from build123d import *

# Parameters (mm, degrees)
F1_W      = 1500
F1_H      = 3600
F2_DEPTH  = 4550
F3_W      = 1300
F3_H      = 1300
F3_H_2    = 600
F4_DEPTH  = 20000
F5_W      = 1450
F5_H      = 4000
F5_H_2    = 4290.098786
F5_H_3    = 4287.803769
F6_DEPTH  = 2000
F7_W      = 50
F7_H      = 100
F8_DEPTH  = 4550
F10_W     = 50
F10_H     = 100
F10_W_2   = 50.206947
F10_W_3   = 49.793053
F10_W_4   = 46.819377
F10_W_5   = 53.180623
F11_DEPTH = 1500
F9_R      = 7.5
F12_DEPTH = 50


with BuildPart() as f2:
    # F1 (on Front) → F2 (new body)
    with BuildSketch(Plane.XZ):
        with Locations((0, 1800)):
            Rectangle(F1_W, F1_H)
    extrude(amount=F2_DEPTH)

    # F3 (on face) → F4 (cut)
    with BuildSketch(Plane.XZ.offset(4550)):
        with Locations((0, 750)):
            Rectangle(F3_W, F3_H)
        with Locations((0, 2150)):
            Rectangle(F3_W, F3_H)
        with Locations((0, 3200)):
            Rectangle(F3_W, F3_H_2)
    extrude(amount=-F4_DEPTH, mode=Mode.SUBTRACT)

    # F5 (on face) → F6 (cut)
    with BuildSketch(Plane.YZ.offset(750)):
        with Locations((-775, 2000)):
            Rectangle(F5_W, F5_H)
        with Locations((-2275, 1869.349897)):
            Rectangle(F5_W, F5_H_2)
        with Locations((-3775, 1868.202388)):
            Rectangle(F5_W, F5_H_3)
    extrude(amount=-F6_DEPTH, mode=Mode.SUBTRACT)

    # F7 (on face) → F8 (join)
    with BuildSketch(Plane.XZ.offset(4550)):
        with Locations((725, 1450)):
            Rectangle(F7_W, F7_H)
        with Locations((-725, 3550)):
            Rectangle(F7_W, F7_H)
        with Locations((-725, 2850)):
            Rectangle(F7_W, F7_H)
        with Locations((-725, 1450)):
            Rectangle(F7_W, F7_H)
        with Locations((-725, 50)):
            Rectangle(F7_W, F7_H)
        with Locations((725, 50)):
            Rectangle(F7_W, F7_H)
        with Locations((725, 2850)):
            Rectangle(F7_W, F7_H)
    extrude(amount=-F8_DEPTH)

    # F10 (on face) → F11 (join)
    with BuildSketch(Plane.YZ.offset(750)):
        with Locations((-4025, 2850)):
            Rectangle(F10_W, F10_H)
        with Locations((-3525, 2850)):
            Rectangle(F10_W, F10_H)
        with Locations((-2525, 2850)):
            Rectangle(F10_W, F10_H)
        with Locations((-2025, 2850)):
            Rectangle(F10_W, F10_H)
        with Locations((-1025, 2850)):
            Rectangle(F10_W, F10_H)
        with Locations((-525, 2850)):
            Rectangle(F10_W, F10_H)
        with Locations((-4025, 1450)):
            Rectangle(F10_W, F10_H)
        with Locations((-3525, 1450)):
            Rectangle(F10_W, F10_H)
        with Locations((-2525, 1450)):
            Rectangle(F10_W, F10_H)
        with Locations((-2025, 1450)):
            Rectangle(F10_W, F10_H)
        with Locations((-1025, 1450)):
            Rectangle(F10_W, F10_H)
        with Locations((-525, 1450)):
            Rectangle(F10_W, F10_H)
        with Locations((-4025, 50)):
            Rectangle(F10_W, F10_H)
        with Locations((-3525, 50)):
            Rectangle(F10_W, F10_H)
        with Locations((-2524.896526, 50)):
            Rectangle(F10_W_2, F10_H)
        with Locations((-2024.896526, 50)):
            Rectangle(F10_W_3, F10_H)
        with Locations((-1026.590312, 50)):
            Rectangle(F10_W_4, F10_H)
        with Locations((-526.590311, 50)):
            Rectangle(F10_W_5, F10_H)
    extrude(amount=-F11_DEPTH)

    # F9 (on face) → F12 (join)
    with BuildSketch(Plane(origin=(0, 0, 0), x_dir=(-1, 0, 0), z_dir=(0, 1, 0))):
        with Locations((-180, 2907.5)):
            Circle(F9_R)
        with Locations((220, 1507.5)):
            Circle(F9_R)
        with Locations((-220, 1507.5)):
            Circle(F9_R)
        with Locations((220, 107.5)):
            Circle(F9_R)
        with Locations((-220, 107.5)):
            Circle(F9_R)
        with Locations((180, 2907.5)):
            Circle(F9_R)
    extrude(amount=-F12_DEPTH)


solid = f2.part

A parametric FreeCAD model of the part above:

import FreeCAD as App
import Part
import Sketcher


def add_polygon(sketch, points):
    """Adds a closed chain of lines whose ends are joined by coincident constraints."""
    first, n = sketch.GeometryCount, len(points)
    for a, b in zip(points, points[1:] + points[:1]):
        sketch.addGeometry(Part.LineSegment(App.Vector(*a, 0), App.Vector(*b, 0)), False)
    for i in range(n):
        sketch.addConstraint(Sketcher.Constraint("Coincident", first + i, 2, first + (i + 1) % n, 1))

doc = App.newDocument("Part")
body = doc.addObject("PartDesign::Body", "Body")
body.AllowCompound = True

# Sketch on XZ plane
sketch1 = body.newObject("Sketcher::SketchObject", "Sketch")
sketch1.AttachmentSupport = (doc.getObject("XZ_Plane"), [""])
sketch1.MapMode = "FlatFace"
add_polygon(sketch1, [(-750, 3600), (-750, 0), (750, 0), (750, 3600)])  # lines 0-3
sketch1.addConstraint([
    Sketcher.Constraint("Vertical", 0),
    Sketcher.Constraint("Horizontal", 1),
    Sketcher.Constraint("Vertical", 2),
    Sketcher.Constraint("Horizontal", 3),
    Sketcher.Constraint("Symmetric", 0, 2, 1, 2, -1, 1),
    Sketcher.Constraint("DistanceX", 1, 1, 1, 2, 1500.0),
    Sketcher.Constraint("DistanceY", 0, 2, 0, 1, 3600.0),
])
pad1 = body.newObject("PartDesign::Pad", "Pad")
pad1.Profile = sketch1
pad1.Length = 4550

# Sketch on XZ plane
sketch2 = body.newObject("Sketcher::SketchObject", "Sketch001")
sketch2.AttachmentSupport = (doc.getObject("XZ_Plane"), [""])
sketch2.MapMode = "FlatFace"
sketch2.AttachmentOffset = App.Placement(App.Vector(0, 0, 4550), App.Rotation())
add_polygon(sketch2, [(-650, 1400), (-650, 100), (650, 100), (650, 1400)])  # lines 0-3
add_polygon(sketch2, [(-650, 2800), (-650, 1500), (650, 1500), (650, 2800)])  # lines 4-7
add_polygon(sketch2, [(-650, 3500), (-650, 2900), (650, 2900), (650, 3500)])  # lines 8-11
sketch2.addConstraint([
    Sketcher.Constraint("Vertical", 0),
    Sketcher.Constraint("Horizontal", 1),
    Sketcher.Constraint("Vertical", 2),
    Sketcher.Constraint("Horizontal", 3),
    Sketcher.Constraint("Vertical", 4),
    Sketcher.Constraint("Horizontal", 5),
    Sketcher.Constraint("Vertical", 6),
    Sketcher.Constraint("Horizontal", 7),
    Sketcher.Constraint("Vertical", 8),
    Sketcher.Constraint("Horizontal", 9),
    Sketcher.Constraint("Vertical", 10),
    Sketcher.Constraint("Horizontal", 11),
    Sketcher.Constraint("Vertical", 3, 2, 4, 2),
    Sketcher.Constraint("Vertical", 2, 2, 5, 2),
    Sketcher.Constraint("Vertical", 7, 2, 8, 2),
    Sketcher.Constraint("Vertical", 6, 2, 9, 2),
    Sketcher.Constraint("Equal", 11, 0),
    Sketcher.Constraint("Equal", 2, 4),
    Sketcher.Constraint("DistanceX", 1, 1, 1, 2, 1300.0),
    Sketcher.Constraint("DistanceY", 8, 2, 8, 1, 600.0),
    Sketcher.Constraint("DistanceX", 0, 2, -1, 1, 650.0),
    Sketcher.Constraint("DistanceY", -1, 1, 0, 2, 100.0),
    Sketcher.Constraint("DistanceY", -1, 1, 4, 2, 1500.0),
    Sketcher.Constraint("DistanceY", -1, 1, 8, 2, 2900.0),
])
pocket1 = body.newObject("PartDesign::Pocket", "Pocket")
pocket1.Profile = sketch2
pocket1.Length = 20000

# Sketch on YZ plane
sketch3 = body.newObject("Sketcher::SketchObject", "Sketch002")
sketch3.AttachmentSupport = (doc.getObject("YZ_Plane"), [""])
sketch3.MapMode = "FlatFace"
sketch3.AttachmentOffset = App.Placement(App.Vector(0, 0, 750), App.Rotation())
add_polygon(sketch3, [(-1500, 4000), (-1500, 0), (-50, 0), (-50, 4000)])  # lines 0-3
add_polygon(sketch3, [(-3000, 4014), (-3000, -276), (-1550, -276), (-1550, 4014)])  # lines 4-7
add_polygon(sketch3, [(-4500, 4012), (-4500, -276), (-3050, -276), (-3050, 4012)])  # lines 8-11
sketch3.addConstraint([
    Sketcher.Constraint("Vertical", 0),
    Sketcher.Constraint("Horizontal", 1),
    Sketcher.Constraint("Vertical", 2),
    Sketcher.Constraint("Horizontal", 3),
    Sketcher.Constraint("Vertical", 4),
    Sketcher.Constraint("Horizontal", 5),
    Sketcher.Constraint("Vertical", 6),
    Sketcher.Constraint("Horizontal", 7),
    Sketcher.Constraint("Vertical", 8),
    Sketcher.Constraint("Horizontal", 9),
    Sketcher.Constraint("Vertical", 10),
    Sketcher.Constraint("Horizontal", 11),
    Sketcher.Constraint("PointOnObject", 0, 2, -1),
    Sketcher.Constraint("Horizontal", 5, 2, 8, 2),
    Sketcher.Constraint("Equal", 3, 5),
    Sketcher.Constraint("Equal", 7, 9),
    Sketcher.Constraint("DistanceX", 1, 1, 1, 2, 1450.0),
    Sketcher.Constraint("DistanceY", 0, 2, 0, 1, 4000.0),
    Sketcher.Constraint("DistanceX", 0, 2, -1, 1, 1500.0),
    Sketcher.Constraint("DistanceX", 4, 2, -1, 1, 3000.0),
    Sketcher.Constraint("DistanceX", 8, 2, -1, 1, 4500.0),
    Sketcher.Constraint("DistanceY", 8, 2, 8, 1, 4287.803769),
    Sketcher.Constraint("DistanceY", 4, 2, 4, 1, 4290.098786),
    Sketcher.Constraint("DistanceY", -1, 1, 6, 2, 4014.39929),
])
pocket2 = body.newObject("PartDesign::Pocket", "Pocket001")
pocket2.Profile = sketch3
pocket2.Length = 2000

# Sketch on XZ plane
sketch4 = body.newObject("Sketcher::SketchObject", "Sketch003")
sketch4.AttachmentSupport = (doc.getObject("XZ_Plane"), [""])
sketch4.MapMode = "FlatFace"
sketch4.AttachmentOffset = App.Placement(App.Vector(0, 0, 4550), App.Rotation())
add_polygon(sketch4, [(700, 1500), (700, 1400), (750, 1400), (750, 1500)])  # lines 0-3
add_polygon(sketch4, [(-750, 3600), (-750, 3500), (-700, 3500), (-700, 3600)])  # lines 4-7
add_polygon(sketch4, [(-750, 2900), (-750, 2800), (-700, 2800), (-700, 2900)])  # lines 8-11
add_polygon(sketch4, [(-750, 1500), (-750, 1400), (-700, 1400), (-700, 1500)])  # lines 12-15
add_polygon(sketch4, [(-750, 100), (-750, 0), (-700, 0), (-700, 100)])  # lines 16-19
add_polygon(sketch4, [(700, 100), (700, 0), (750, 0), (750, 100)])  # lines 20-23
add_polygon(sketch4, [(700, 2900), (700, 2800), (750, 2800), (750, 2900)])  # lines 24-27
sketch4.addConstraint([
    Sketcher.Constraint("Vertical", 0),
    Sketcher.Constraint("Horizontal", 1),
    Sketcher.Constraint("Vertical", 2),
    Sketcher.Constraint("Horizontal", 3),
    Sketcher.Constraint("Vertical", 4),
    Sketcher.Constraint("Horizontal", 5),
    Sketcher.Constraint("Vertical", 6),
    Sketcher.Constraint("Horizontal", 7),
    Sketcher.Constraint("Vertical", 8),
    Sketcher.Constraint("Horizontal", 9),
    Sketcher.Constraint("Vertical", 10),
    Sketcher.Constraint("Horizontal", 11),
    Sketcher.Constraint("Vertical", 12),
    Sketcher.Constraint("Horizontal", 13),
    Sketcher.Constraint("Vertical", 14),
    Sketcher.Constraint("Horizontal", 15),
    Sketcher.Constraint("Vertical", 16),
    Sketcher.Constraint("Horizontal", 17),
    Sketcher.Constraint("Vertical", 18),
    Sketcher.Constraint("Horizontal", 19),
    Sketcher.Constraint("Vertical", 20),
    Sketcher.Constraint("Horizontal", 21),
    Sketcher.Constraint("Vertical", 22),
    Sketcher.Constraint("Horizontal", 23),
    Sketcher.Constraint("Vertical", 24),
    Sketcher.Constraint("Horizontal", 25),
    Sketcher.Constraint("Vertical", 26),
    Sketcher.Constraint("Horizontal", 27),
    Sketcher.Constraint("Symmetric", 17, 2, 20, 2, -1, 1),
    Sketcher.Constraint("Symmetric", 1, 2, 12, 2, -2),
    Sketcher.Constraint("Symmetric", 3, 2, 14, 2, -2),
    Sketcher.Constraint("Symmetric", 16, 2, 21, 2, -2),
    Sketcher.Constraint("Symmetric", 9, 2, 24, 2, -2),
    Sketcher.Constraint("Symmetric", 11, 2, 26, 2, -2),
    Sketcher.Constraint("Horizontal", 19, 2, 22, 2),
    Sketcher.Constraint("Vertical", 7, 2, 8, 2),
    Sketcher.Constraint("Vertical", 6, 2, 9, 2),
    Sketcher.Constraint("Vertical", 11, 2, 12, 2),
    Sketcher.Constraint("Vertical", 10, 2, 13, 2),
    Sketcher.Constraint("Vertical", 15, 2, 16, 2),
    Sketcher.Constraint("Vertical", 14, 2, 17, 2),
    Sketcher.Constraint("Equal", 2, 4),
    Sketcher.Constraint("Equal", 6, 8),
    Sketcher.Constraint("Equal", 14, 16),
    Sketcher.Constraint("DistanceX", 1, 1, 1, 2, 50.0),
    Sketcher.Constraint("DistanceY", 0, 2, 0, 1, 100.0),
    Sketcher.Constraint("DistanceX", -1, 1, 0, 2, 700.0),
    Sketcher.Constraint("DistanceY", -1, 1, 0, 2, 1400.0),
    Sketcher.Constraint("DistanceY", -1, 1, 4, 2, 3500.0),
    Sketcher.Constraint("DistanceY", -1, 1, 8, 2, 2800.0),
])
pad2 = body.newObject("PartDesign::Pad", "Pad001")
pad2.Profile = sketch4
pad2.Length = 4550
pad2.Reversed = True

# Sketch on YZ plane
sketch5 = body.newObject("Sketcher::SketchObject", "Sketch004")
sketch5.AttachmentSupport = (doc.getObject("YZ_Plane"), [""])
sketch5.MapMode = "FlatFace"
sketch5.AttachmentOffset = App.Placement(App.Vector(0, 0, 750), App.Rotation())
add_polygon(sketch5, [(-4050, 2900), (-4050, 2800), (-4000, 2800), (-4000, 2900)])  # lines 0-3
add_polygon(sketch5, [(-3550, 2900), (-3550, 2800), (-3500, 2800), (-3500, 2900)])  # lines 4-7
add_polygon(sketch5, [(-2550, 2900), (-2550, 2800), (-2500, 2800), (-2500, 2900)])  # lines 8-11
add_polygon(sketch5, [(-2050, 2900), (-2050, 2800), (-2000, 2800), (-2000, 2900)])  # lines 12-15
add_polygon(sketch5, [(-1050, 2900), (-1050, 2800), (-1000, 2800), (-1000, 2900)])  # lines 16-19
add_polygon(sketch5, [(-550, 2900), (-550, 2800), (-500, 2800), (-500, 2900)])  # lines 20-23
add_polygon(sketch5, [(-4050, 1500), (-4050, 1400), (-4000, 1400), (-4000, 1500)])  # lines 24-27
add_polygon(sketch5, [(-3550, 1500), (-3550, 1400), (-3500, 1400), (-3500, 1500)])  # lines 28-31
add_polygon(sketch5, [(-2550, 1500), (-2550, 1400), (-2500, 1400), (-2500, 1500)])  # lines 32-35
add_polygon(sketch5, [(-2050, 1500), (-2050, 1400), (-2000, 1400), (-2000, 1500)])  # lines 36-39
add_polygon(sketch5, [(-1050, 1500), (-1050, 1400), (-1000, 1400), (-1000, 1500)])  # lines 40-43
add_polygon(sketch5, [(-550, 1500), (-550, 1400), (-500, 1400), (-500, 1500)])  # lines 44-47
add_polygon(sketch5, [(-4050, 100), (-4050, 0), (-4000, 0), (-4000, 100)])  # lines 48-51
add_polygon(sketch5, [(-3550, 100), (-3550, 0), (-3500, 0), (-3500, 100)])  # lines 52-55
add_polygon(sketch5, [(-2550, 100), (-2550, 0), (-2500, 0), (-2500, 100)])  # lines 56-59
add_polygon(sketch5, [(-2050, 100), (-2050, 0), (-2000, 0), (-2000, 100)])  # lines 60-63
add_polygon(sketch5, [(-1050, 100), (-1050, 0), (-1003, 0), (-1003, 100)])  # lines 64-67
add_polygon(sketch5, [(-553, 100), (-553, 0), (-500, 0), (-500, 100)])  # lines 68-71
sketch5.addConstraint([
    Sketcher.Constraint("Vertical", 0),
    Sketcher.Constraint("Horizontal", 1),
    Sketcher.Constraint("Vertical", 2),
    Sketcher.Constraint("Horizontal", 3),
    Sketcher.Constraint("Vertical", 4),
    Sketcher.Constraint("Horizontal", 5),
    Sketcher.Constraint("Vertical", 6),
    Sketcher.Constraint("Horizontal", 7),
    Sketcher.Constraint("Vertical", 8),
    Sketcher.Constraint("Horizontal", 9),
    Sketcher.Constraint("Vertical", 10),
    Sketcher.Constraint("Horizontal", 11),
    Sketcher.Constraint("Vertical", 12),
    Sketcher.Constraint("Horizontal", 13),
    Sketcher.Constraint("Vertical", 14),
    Sketcher.Constraint("Horizontal", 15),
    Sketcher.Constraint("Vertical", 16),
    Sketcher.Constraint("Horizontal", 17),
    Sketcher.Constraint("Vertical", 18),
    Sketcher.Constraint("Horizontal", 19),
    Sketcher.Constraint("Vertical", 20),
    Sketcher.Constraint("Horizontal", 21),
    Sketcher.Constraint("Vertical", 22),
    Sketcher.Constraint("Horizontal", 23),
    Sketcher.Constraint("Vertical", 24),
    Sketcher.Constraint("Horizontal", 25),
    Sketcher.Constraint("Vertical", 26),
    Sketcher.Constraint("Horizontal", 27),
    Sketcher.Constraint("Vertical", 28),
    Sketcher.Constraint("Horizontal", 29),
    Sketcher.Constraint("Vertical", 30),
    Sketcher.Constraint("Horizontal", 31),
    Sketcher.Constraint("Vertical", 32),
    Sketcher.Constraint("Horizontal", 33),
    Sketcher.Constraint("Vertical", 34),
    Sketcher.Constraint("Horizontal", 35),
    Sketcher.Constraint("Vertical", 36),
    Sketcher.Constraint("Horizontal", 37),
    Sketcher.Constraint("Vertical", 38),
    Sketcher.Constraint("Horizontal", 39),
    Sketcher.Constraint("Vertical", 40),
    Sketcher.Constraint("Horizontal", 41),
    Sketcher.Constraint("Vertical", 42),
    Sketcher.Constraint("Horizontal", 43),
    Sketcher.Constraint("Vertical", 44),
    Sketcher.Constraint("Horizontal", 45),
    Sketcher.Constraint("Vertical", 46),
    Sketcher.Constraint("Horizontal", 47),
    Sketcher.Constraint("Vertical", 48),
    Sketcher.Constraint("Horizontal", 49),
    Sketcher.Constraint("Vertical", 50),
    Sketcher.Constraint("Horizontal", 51),
    Sketcher.Constraint("Vertical", 52),
    Sketcher.Constraint("Horizontal", 53),
    Sketcher.Constraint("Vertical", 54),
    Sketcher.Constraint("Horizontal", 55),
    Sketcher.Constraint("Vertical", 56),
    Sketcher.Constraint("Horizontal", 57),
    Sketcher.Constraint("Vertical", 58),
    Sketcher.Constraint("Horizontal", 59),
    Sketcher.Constraint("Vertical", 60),
    Sketcher.Constraint("Horizontal", 61),
    Sketcher.Constraint("Vertical", 62),
    Sketcher.Constraint("Horizontal", 63),
    Sketcher.Constraint("Vertical", 64),
    Sketcher.Constraint("Horizontal", 65),
    Sketcher.Constraint("Vertical", 66),
    Sketcher.Constraint("Horizontal", 67),
    Sketcher.Constraint("Vertical", 68),
    Sketcher.Constraint("Horizontal", 69),
    Sketcher.Constraint("Vertical", 70),
    Sketcher.Constraint("Horizontal", 71),
    Sketcher.Constraint("PointOnObject", 48, 2, -1),
    Sketcher.Constraint("PointOnObject", 52, 2, -1),
    Sketcher.Constraint("PointOnObject", 56, 2, -1),
    Sketcher.Constraint("PointOnObject", 60, 2, -1),
    Sketcher.Constraint("PointOnObject", 64, 2, -1),
    Sketcher.Constraint("PointOnObject", 68, 2, -1),
    Sketcher.Constraint("Horizontal", 1, 2, 4, 2),
    Sketcher.Constraint("Horizontal", 3, 2, 6, 2),
    Sketcher.Constraint("Horizontal", 5, 2, 8, 2),
    Sketcher.Constraint("Horizontal", 7, 2, 10, 2),
    Sketcher.Constraint("Horizontal", 9, 2, 12, 2),
    Sketcher.Constraint("Horizontal", 11, 2, 14, 2),
    Sketcher.Constraint("Horizontal", 13, 2, 16, 2),
    Sketcher.Constraint("Horizontal", 15, 2, 18, 2),
    Sketcher.Constraint("Horizontal", 17, 2, 20, 2),
    Sketcher.Constraint("Horizontal", 19, 2, 22, 2),
    Sketcher.Constraint("Horizontal", 25, 2, 28, 2),
    Sketcher.Constraint("Horizontal", 27, 2, 30, 2),
    Sketcher.Constraint("Horizontal", 29, 2, 32, 2),
    Sketcher.Constraint("Horizontal", 31, 2, 34, 2),
    Sketcher.Constraint("Horizontal", 33, 2, 36, 2),
    Sketcher.Constraint("Horizontal", 35, 2, 38, 2),
    Sketcher.Constraint("Horizontal", 37, 2, 40, 2),
    Sketcher.Constraint("Horizontal", 39, 2, 42, 2),
    Sketcher.Constraint("Horizontal", 41, 2, 44, 2),
    Sketcher.Constraint("Horizontal", 43, 2, 46, 2),
    Sketcher.Constraint("Horizontal", 51, 2, 54, 2),
    Sketcher.Constraint("Horizontal", 55, 2, 58, 2),
    Sketcher.Constraint("Horizontal", 59, 2, 62, 2),
    Sketcher.Constraint("Horizontal", 63, 2, 66, 2),
    Sketcher.Constraint("Horizontal", 67, 2, 70, 2),
    Sketcher.Constraint("Vertical", 3, 2, 24, 2),
    Sketcher.Constraint("Vertical", 2, 2, 25, 2),
    Sketcher.Constraint("Vertical", 7, 2, 28, 2),
    Sketcher.Constraint("Vertical", 6, 2, 29, 2),
    Sketcher.Constraint("Vertical", 11, 2, 32, 2),
    Sketcher.Constraint("Vertical", 10, 2, 33, 2),
    Sketcher.Constraint("Vertical", 15, 2, 36, 2),
    Sketcher.Constraint("Vertical", 14, 2, 37, 2),
    Sketcher.Constraint("Vertical", 19, 2, 40, 2),
    Sketcher.Constraint("Vertical", 18, 2, 41, 2),
    Sketcher.Constraint("Vertical", 23, 2, 44, 2),
    Sketcher.Constraint("Vertical", 22, 2, 45, 2),
    Sketcher.Constraint("Vertical", 27, 2, 48, 2),
    Sketcher.Constraint("Vertical", 26, 2, 49, 2),
    Sketcher.Constraint("Vertical", 31, 2, 52, 2),
    Sketcher.Constraint("Vertical", 30, 2, 53, 2),
    Sketcher.Constraint("Vertical", 35, 2, 56, 2),
    Sketcher.Constraint("Vertical", 38, 2, 61, 2),
    Sketcher.Constraint("Vertical", 43, 2, 64, 2),
    Sketcher.Constraint("Vertical", 46, 2, 69, 2),
    Sketcher.Constraint("Equal", 3, 5),
    Sketcher.Constraint("Equal", 7, 9),
    Sketcher.Constraint("Equal", 11, 13),
    Sketcher.Constraint("Equal", 15, 17),
    Sketcher.Constraint("Equal", 19, 21),
    Sketcher.Constraint("Equal", 22, 24),
    Sketcher.Constraint("Equal", 46, 48),
    Sketcher.Constraint("DistanceX", 1, 1, 1, 2, 50.0),
    Sketcher.Constraint("DistanceY", 0, 2, 0, 1, 100.0),
    Sketcher.Constraint("DistanceX", 0, 2, -1, 1, 4050.0),
    Sketcher.Constraint("DistanceY", -1, 1, 0, 2, 2800.0),
    Sketcher.Constraint("DistanceX", 4, 2, -1, 1, 3550.0),
    Sketcher.Constraint("DistanceX", 8, 2, -1, 1, 2550.0),
    Sketcher.Constraint("DistanceX", 12, 2, -1, 1, 2050.0),
    Sketcher.Constraint("DistanceX", 16, 2, -1, 1, 1050.0),
    Sketcher.Constraint("DistanceX", 20, 2, -1, 1, 550.0),
    Sketcher.Constraint("DistanceY", -1, 1, 24, 2, 1400.0),
    Sketcher.Constraint("DistanceX", 57, 1, 57, 2, 50.206947),
    Sketcher.Constraint("DistanceX", 61, 1, 61, 2, 49.793053),
    Sketcher.Constraint("DistanceX", 65, 1, 65, 2, 46.819377),
    Sketcher.Constraint("DistanceX", 69, 1, 69, 2, 53.180623),
])
pad3 = body.newObject("PartDesign::Pad", "Pad002")
pad3.Profile = sketch5
pad3.Length = 1500
pad3.Reversed = True

# Sketch on XZ plane
sketch6 = body.newObject("Sketcher::SketchObject", "Sketch005")
sketch6.AttachmentSupport = (doc.getObject("XZ_Plane"), [""])
sketch6.MapMode = "FlatFace"
sketch6.addGeometry([
    Part.Circle(App.Vector(180, 2908, 0), App.Vector(0, 0, 1), 8),  # 0
    Part.Circle(App.Vector(-220, 1508, 0), App.Vector(0, 0, 1), 8),  # 1
    Part.Circle(App.Vector(220, 1508, 0), App.Vector(0, 0, 1), 8),  # 2
    Part.Circle(App.Vector(-220, 108, 0), App.Vector(0, 0, 1), 8),  # 3
    Part.Circle(App.Vector(220, 108, 0), App.Vector(0, 0, 1), 8),  # 4
    Part.Circle(App.Vector(-180, 2908, 0), App.Vector(0, 0, 1), 8),  # 5
], False)
sketch6.addConstraint([
    Sketcher.Constraint("Equal", 0, 1),
    Sketcher.Constraint("Equal", 1, 2),
    Sketcher.Constraint("Equal", 2, 3),
    Sketcher.Constraint("Equal", 3, 4),
    Sketcher.Constraint("Equal", 4, 5),
    Sketcher.Constraint("Symmetric", 1, 3, 2, 3, -2),
    Sketcher.Constraint("Symmetric", 3, 3, 4, 3, -2),
    Sketcher.Constraint("Symmetric", 0, 3, 5, 3, -2),
    Sketcher.Constraint("Vertical", 1, 3, 3, 3),
    Sketcher.Constraint("Diameter", 0, 15.0),
    Sketcher.Constraint("DistanceX", -1, 1, 0, 3, 180.0),
    Sketcher.Constraint("DistanceX", 1, 3, -1, 1, 220.0),
    Sketcher.Constraint("DistanceY", 1, 3, 0, 3, 1400.0),
    Sketcher.Constraint("DistanceY", 3, 3, 1, 3, 1400.0),
    Sketcher.Constraint("DistanceY", -1, 1, 0, 3, 2907.5),
])
pad4 = body.newObject("PartDesign::Pad", "Pad003")
pad4.Profile = sketch6
pad4.Length = 50

doc.recompute()
